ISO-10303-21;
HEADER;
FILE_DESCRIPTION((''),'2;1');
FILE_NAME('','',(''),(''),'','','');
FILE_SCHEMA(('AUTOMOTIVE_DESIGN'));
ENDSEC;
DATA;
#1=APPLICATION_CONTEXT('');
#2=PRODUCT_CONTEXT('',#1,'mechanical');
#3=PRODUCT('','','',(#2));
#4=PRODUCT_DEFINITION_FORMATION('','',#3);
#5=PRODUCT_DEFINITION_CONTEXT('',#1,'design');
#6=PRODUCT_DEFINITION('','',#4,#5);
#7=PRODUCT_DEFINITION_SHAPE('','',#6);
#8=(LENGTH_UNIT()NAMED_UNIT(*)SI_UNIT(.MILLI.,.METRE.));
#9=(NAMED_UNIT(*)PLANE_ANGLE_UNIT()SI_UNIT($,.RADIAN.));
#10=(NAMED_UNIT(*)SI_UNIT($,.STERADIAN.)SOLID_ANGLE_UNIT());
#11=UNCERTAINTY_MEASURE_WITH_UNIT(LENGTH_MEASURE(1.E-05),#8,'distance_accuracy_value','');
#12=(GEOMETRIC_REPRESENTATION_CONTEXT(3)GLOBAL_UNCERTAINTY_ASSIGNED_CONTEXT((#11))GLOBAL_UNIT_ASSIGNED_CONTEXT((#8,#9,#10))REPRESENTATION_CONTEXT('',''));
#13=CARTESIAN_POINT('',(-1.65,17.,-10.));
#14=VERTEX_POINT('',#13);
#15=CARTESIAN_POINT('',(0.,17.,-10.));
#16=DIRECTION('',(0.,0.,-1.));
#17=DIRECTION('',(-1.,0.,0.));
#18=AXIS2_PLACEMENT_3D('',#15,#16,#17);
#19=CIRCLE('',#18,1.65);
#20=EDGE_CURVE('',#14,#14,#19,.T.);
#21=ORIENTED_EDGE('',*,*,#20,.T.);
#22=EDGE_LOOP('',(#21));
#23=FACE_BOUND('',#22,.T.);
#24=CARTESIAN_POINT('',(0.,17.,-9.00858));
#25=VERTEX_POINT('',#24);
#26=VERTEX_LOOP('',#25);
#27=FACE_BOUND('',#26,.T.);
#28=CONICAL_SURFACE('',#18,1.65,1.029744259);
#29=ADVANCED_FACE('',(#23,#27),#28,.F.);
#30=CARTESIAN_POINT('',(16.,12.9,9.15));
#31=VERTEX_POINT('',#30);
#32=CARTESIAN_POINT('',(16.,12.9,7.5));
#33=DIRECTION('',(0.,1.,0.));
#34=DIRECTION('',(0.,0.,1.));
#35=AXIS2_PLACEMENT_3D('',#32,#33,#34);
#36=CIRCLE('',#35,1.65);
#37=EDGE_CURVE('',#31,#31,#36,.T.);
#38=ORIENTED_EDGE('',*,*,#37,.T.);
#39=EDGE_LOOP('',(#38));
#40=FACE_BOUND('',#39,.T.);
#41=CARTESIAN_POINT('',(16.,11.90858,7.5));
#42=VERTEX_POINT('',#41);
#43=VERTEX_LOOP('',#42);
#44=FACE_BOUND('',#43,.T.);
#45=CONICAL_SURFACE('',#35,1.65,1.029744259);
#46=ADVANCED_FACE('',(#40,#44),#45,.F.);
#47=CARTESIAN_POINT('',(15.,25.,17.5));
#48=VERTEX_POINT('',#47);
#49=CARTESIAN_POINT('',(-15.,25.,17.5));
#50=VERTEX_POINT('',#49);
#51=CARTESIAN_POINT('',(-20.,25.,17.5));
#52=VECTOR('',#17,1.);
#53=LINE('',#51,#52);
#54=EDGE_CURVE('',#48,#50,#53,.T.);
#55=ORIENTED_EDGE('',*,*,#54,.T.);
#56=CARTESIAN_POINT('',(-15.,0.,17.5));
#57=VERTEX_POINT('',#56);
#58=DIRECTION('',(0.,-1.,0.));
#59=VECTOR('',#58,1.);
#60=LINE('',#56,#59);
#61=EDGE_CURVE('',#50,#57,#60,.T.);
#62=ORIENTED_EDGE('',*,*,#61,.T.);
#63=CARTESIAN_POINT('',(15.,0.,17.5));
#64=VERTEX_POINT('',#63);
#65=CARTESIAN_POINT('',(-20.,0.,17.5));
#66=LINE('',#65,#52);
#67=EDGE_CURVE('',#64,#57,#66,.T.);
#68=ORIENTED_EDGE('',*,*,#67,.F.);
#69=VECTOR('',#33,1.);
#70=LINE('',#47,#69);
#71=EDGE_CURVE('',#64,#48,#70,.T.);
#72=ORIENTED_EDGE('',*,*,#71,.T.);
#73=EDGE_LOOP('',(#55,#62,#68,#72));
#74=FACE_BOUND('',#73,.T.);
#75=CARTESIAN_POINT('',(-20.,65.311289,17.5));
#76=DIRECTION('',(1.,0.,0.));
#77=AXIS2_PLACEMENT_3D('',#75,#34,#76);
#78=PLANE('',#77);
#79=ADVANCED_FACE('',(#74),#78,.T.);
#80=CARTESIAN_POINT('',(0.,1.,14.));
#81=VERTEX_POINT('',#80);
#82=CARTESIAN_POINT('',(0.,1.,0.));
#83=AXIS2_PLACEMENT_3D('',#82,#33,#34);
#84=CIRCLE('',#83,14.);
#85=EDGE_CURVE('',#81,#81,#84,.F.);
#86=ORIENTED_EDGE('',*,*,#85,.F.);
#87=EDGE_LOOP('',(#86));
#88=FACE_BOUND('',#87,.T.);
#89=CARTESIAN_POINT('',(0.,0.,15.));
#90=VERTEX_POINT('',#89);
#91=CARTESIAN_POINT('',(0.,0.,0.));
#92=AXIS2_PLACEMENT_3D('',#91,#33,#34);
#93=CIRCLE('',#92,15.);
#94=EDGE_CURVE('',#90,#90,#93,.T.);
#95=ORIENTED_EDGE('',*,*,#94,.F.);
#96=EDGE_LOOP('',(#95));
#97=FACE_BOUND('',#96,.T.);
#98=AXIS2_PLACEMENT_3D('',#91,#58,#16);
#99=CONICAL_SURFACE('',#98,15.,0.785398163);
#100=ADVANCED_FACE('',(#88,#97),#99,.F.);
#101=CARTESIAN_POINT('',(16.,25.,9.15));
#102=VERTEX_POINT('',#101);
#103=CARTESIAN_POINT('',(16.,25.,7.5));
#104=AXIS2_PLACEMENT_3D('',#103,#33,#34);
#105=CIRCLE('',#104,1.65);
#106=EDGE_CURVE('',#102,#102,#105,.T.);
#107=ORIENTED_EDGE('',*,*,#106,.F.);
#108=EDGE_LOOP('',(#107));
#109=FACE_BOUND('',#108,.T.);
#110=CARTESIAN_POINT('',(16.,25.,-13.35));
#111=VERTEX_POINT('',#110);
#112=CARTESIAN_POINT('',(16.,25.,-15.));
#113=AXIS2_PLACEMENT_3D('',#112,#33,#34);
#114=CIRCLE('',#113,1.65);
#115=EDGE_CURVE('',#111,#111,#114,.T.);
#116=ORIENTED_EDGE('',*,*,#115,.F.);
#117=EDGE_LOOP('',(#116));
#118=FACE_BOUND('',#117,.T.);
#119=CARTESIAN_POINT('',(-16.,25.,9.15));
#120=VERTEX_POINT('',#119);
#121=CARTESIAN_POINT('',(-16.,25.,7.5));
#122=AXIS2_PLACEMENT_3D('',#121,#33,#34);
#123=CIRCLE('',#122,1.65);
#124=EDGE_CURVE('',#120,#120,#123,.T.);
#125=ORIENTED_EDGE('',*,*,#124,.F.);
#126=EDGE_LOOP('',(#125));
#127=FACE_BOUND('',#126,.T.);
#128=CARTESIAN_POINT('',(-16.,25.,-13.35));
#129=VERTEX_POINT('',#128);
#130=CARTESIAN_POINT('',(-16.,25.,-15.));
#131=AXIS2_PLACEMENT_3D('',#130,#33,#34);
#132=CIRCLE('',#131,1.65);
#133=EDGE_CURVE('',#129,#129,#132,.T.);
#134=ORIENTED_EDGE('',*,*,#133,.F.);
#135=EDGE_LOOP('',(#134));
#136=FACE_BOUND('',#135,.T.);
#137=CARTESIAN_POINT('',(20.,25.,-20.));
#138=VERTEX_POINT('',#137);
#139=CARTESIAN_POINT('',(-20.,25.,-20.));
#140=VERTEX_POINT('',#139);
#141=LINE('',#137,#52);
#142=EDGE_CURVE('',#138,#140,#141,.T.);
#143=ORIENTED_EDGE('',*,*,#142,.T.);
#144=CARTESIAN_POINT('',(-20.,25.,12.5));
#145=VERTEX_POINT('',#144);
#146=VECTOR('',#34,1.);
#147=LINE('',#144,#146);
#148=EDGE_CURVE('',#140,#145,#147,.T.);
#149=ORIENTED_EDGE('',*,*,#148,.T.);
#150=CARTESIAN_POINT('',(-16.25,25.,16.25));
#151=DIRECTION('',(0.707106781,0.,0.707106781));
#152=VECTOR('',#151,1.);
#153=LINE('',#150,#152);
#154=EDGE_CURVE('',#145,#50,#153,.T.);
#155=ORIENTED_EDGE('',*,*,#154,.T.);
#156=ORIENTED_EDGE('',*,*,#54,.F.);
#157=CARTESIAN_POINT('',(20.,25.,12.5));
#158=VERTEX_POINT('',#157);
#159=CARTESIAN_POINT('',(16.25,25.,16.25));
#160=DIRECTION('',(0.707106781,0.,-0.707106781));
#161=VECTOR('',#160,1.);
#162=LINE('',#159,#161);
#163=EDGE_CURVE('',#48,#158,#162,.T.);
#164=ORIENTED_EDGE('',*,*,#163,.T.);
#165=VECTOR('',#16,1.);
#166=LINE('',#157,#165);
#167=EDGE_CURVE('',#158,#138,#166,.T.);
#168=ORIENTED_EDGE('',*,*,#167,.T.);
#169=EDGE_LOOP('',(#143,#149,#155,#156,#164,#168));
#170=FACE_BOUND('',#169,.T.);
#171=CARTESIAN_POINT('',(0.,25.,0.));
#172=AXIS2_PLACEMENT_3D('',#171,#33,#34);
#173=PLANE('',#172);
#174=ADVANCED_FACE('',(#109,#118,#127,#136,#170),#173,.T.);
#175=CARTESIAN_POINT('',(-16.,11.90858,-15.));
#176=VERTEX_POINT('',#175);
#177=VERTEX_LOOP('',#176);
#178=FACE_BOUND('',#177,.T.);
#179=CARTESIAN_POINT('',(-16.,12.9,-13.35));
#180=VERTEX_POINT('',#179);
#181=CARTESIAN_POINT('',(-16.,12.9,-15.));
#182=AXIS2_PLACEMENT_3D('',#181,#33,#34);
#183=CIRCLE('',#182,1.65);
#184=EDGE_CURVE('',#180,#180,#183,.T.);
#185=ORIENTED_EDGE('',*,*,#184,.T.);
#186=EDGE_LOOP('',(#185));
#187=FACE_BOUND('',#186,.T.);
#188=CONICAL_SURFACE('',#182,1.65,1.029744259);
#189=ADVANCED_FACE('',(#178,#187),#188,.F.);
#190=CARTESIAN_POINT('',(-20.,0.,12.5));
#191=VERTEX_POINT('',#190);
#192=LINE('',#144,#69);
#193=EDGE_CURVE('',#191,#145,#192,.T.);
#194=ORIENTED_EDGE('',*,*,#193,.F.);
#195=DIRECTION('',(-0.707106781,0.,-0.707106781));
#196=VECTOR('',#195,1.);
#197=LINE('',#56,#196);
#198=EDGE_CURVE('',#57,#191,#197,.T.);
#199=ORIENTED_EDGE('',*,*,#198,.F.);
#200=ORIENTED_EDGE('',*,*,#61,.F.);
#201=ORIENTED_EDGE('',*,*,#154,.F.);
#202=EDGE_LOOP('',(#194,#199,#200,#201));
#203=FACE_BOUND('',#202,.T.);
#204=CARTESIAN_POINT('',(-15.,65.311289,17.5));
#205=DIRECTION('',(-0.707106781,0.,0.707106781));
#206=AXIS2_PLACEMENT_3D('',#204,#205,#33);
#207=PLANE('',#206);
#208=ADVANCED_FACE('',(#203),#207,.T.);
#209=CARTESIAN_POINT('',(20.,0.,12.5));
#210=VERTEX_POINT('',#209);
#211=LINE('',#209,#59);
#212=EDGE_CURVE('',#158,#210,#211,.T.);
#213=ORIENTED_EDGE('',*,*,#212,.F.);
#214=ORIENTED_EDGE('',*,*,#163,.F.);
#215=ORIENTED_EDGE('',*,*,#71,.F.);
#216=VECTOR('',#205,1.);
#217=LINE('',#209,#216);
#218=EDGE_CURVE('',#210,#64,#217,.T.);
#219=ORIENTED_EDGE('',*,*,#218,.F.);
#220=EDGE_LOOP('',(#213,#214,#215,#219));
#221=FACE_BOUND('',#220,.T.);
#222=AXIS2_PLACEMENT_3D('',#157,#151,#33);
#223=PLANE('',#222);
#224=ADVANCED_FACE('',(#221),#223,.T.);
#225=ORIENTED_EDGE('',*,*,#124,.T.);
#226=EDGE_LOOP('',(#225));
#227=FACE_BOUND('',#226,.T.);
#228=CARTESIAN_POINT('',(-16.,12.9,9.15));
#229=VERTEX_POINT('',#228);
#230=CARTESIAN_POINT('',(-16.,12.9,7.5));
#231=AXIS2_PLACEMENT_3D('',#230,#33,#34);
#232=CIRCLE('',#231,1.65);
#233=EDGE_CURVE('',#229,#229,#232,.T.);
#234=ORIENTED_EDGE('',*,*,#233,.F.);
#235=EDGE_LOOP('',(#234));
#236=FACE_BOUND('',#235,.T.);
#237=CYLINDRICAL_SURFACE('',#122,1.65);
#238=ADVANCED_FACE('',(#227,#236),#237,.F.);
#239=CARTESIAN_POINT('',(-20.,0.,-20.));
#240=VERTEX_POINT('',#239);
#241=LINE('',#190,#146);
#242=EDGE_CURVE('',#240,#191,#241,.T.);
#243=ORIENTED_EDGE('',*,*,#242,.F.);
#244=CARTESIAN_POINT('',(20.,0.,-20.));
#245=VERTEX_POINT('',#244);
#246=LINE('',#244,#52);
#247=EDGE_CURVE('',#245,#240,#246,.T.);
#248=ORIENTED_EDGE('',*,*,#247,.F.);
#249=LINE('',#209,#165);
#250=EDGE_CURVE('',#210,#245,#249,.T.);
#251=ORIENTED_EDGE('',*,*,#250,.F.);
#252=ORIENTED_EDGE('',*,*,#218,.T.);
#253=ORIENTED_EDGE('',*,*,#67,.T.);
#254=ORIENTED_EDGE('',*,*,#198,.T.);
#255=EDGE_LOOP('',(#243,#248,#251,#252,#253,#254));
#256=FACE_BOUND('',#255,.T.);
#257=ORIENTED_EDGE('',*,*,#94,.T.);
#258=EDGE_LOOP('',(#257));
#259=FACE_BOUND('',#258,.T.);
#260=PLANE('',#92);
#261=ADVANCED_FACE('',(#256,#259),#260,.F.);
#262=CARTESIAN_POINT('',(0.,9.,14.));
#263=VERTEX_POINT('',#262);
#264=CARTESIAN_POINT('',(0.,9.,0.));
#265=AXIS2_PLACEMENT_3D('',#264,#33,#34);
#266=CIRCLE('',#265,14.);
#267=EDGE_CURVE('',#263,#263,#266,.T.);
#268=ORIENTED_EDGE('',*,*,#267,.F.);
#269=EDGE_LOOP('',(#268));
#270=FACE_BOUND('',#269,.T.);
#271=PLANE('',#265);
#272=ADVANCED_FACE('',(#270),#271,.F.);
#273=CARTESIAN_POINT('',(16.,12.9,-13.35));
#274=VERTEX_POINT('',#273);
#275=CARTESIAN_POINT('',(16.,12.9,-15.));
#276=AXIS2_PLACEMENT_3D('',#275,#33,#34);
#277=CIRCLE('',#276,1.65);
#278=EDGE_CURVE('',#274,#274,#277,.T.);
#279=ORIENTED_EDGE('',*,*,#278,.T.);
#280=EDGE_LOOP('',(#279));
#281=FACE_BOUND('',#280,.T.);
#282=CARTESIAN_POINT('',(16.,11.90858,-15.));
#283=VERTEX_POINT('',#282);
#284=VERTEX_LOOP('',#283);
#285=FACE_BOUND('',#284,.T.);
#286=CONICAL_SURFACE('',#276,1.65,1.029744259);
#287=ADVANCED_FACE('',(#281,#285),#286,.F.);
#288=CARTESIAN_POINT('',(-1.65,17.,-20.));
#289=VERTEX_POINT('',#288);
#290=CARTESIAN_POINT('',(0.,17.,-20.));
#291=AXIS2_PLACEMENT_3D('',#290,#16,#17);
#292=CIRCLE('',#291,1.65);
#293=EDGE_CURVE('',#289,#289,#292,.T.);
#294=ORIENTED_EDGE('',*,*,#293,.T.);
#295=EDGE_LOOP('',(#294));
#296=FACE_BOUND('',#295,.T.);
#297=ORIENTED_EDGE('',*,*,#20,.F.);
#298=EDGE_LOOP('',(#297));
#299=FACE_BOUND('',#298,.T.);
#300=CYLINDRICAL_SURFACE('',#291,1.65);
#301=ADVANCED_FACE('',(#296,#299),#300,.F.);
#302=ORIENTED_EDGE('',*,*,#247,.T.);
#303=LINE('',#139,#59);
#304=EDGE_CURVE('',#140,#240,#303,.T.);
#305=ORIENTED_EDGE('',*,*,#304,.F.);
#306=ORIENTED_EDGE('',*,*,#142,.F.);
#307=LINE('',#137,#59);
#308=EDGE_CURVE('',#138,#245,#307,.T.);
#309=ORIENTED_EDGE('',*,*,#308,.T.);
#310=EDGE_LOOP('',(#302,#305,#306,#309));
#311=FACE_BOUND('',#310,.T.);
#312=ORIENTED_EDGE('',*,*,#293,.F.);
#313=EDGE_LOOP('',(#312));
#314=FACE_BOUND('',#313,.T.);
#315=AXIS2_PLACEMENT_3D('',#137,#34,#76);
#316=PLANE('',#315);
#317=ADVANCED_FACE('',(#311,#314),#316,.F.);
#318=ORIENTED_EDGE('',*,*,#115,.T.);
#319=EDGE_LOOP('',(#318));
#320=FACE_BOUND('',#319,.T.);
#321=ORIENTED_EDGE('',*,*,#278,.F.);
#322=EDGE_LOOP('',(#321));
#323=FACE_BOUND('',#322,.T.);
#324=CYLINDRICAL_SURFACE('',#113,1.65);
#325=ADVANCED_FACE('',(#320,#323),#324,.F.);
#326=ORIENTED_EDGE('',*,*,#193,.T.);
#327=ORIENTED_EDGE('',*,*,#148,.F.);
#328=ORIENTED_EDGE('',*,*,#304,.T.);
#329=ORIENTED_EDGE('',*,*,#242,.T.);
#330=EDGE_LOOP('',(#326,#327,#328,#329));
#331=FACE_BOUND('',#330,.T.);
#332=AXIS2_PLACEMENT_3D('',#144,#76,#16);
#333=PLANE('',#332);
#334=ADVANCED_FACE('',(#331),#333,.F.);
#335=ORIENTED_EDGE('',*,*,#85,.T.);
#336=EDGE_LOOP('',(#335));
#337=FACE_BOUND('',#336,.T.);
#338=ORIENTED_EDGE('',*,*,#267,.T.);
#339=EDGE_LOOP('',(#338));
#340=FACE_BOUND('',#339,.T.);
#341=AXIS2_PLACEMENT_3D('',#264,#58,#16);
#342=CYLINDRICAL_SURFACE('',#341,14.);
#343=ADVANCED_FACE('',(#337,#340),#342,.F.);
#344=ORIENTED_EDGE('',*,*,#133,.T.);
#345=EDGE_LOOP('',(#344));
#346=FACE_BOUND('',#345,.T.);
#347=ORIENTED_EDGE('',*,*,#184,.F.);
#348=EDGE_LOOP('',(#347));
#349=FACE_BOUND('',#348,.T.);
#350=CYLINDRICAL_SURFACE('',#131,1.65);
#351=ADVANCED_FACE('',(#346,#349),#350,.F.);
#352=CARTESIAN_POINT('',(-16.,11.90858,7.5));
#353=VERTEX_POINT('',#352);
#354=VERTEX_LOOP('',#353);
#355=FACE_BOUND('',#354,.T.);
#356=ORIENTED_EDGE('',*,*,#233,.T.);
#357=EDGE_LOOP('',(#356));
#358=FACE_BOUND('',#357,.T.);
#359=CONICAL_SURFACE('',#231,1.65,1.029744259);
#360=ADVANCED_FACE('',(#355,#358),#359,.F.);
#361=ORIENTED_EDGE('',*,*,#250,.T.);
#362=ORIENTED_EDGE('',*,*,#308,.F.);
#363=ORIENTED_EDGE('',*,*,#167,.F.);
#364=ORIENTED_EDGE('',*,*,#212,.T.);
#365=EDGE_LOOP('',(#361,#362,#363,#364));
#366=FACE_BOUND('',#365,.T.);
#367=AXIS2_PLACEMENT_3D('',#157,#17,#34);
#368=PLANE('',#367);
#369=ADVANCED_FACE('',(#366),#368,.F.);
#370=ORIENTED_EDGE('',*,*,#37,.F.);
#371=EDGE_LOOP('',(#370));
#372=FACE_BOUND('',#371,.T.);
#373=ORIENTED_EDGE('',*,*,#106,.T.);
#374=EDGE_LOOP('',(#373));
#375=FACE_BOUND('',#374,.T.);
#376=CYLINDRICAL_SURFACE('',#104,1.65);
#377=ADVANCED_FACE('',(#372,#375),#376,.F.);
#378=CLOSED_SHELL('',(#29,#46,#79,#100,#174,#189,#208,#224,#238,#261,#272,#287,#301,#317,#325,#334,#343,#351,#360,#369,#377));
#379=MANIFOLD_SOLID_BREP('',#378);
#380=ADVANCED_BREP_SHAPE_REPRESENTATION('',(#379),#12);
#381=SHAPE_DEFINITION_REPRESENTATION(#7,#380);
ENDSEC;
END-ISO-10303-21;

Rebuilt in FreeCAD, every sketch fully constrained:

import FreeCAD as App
import Part
import Sketcher
from FreeCAD import Vector
Q = App.Units.Quantity


def edges_at(feature, points):
    """Names of the edges that pass closest to the given points."""
    edges = feature.Shape.Edges
    near = lambda p: min(range(len(edges)), key=lambda i: edges[i].distToShape(Part.Vertex(*p))[0])
    return sorted({f"Edge{near(p) + 1}" for p in points})

doc = App.newDocument("Part")
body = doc.addObject("PartDesign::Body", "Body")

# Sketch on XZ plane
sketch1 = body.newObject("Sketcher::SketchObject", "Sketch")
sketch1.AttachmentSupport = (doc.getObject("XZ_Plane"), [""])
sketch1.MapMode = "FlatFace"
sketch1.addGeometry([
    Part.LineSegment(Vector(-20, -20, 0), Vector(-20, 12.5, 0)),
    Part.LineSegment(Vector(-20, 12.5, 0), Vector(20, 12.5, 0)),
    Part.LineSegment(Vector(20, 12.5, 0), Vector(20, -20, 0)),
    Part.LineSegment(Vector(20, -20, 0), Vector(-20, -20, 0)),
], False)
sketch1.addConstraint([
    Sketcher.Constraint("Coincident", 0, 2, 1, 1),
    Sketcher.Constraint("Coincident", 1, 2, 2, 1),
    Sketcher.Constraint("Coincident", 2, 2, 3, 1),
    Sketcher.Constraint("Coincident", 3, 2, 0, 1),
    Sketcher.Constraint("Vertical", 0),
    Sketcher.Constraint("Horizontal", 1),
    Sketcher.Constraint("Vertical", 2),
    Sketcher.Constraint("Horizontal", 3),
    Sketcher.Constraint("DistanceX", 1, 1, 1, 2, Q("40 mm")),
    Sketcher.Constraint("DistanceY", 0, 1, 0, 2, Q("32.5 mm")),
    Sketcher.Constraint("DistanceX", 0, 2, -1, 1, Q("20 mm")),
    Sketcher.Constraint("DistanceY", 2, 2, -1, 1, Q("20 mm")),
])
pad1 = body.newObject("PartDesign::Pad", "Pad")
pad1.Profile = sketch1
pad1.Length = 25
pad1.Reversed = True

# Sketch on XZ plane
sketch2 = body.newObject("Sketcher::SketchObject", "Sketch001")
sketch2.AttachmentSupport = (doc.getObject("XZ_Plane"), [""])
sketch2.MapMode = "FlatFace"
sketch2.addGeometry([
    Part.LineSegment(Vector(-20, 17.5, 0), Vector(-20, 12.5, 0)),
    Part.LineSegment(Vector(-20, 12.5, 0), Vector(20, 12.5, 0)),
    Part.LineSegment(Vector(20, 12.5, 0), Vector(20, 17.5, 0)),
    Part.LineSegment(Vector(20, 17.5, 0), Vector(-20, 17.5, 0)),
], False)
sketch2.addConstraint([
    Sketcher.Constraint("Coincident", 0, 2, 1, 1),
    Sketcher.Constraint("Coincident", 1, 2, 2, 1),
    Sketcher.Constraint("Coincident", 2, 2, 3, 1),
    Sketcher.Constraint("Coincident", 3, 2, 0, 1),
    Sketcher.Constraint("Vertical", 0),
    Sketcher.Constraint("Horizontal", 1),
    Sketcher.Constraint("Vertical", 2),
    Sketcher.Constraint("Horizontal", 3),
    Sketcher.Constraint("DistanceX", 1, 1, 1, 2, Q("40 mm")),
    Sketcher.Constraint("DistanceY", 0, 2, 0, 1, Q("5 mm")),
    Sketcher.Constraint("DistanceX", 0, 2, -1, 1, Q("20 mm")),
    Sketcher.Constraint("DistanceY", -1, 1, 0, 2, Q("12.5 mm")),
])
pad2 = body.newObject("PartDesign::Pad", "Pad001")
pad2.Profile = sketch2
pad2.Length = 25
pad2.Reversed = True

# Sketch on XZ plane
sketch3 = body.newObject("Sketcher::SketchObject", "Sketch002")
sketch3.AttachmentSupport = (doc.getObject("XZ_Plane"), [""])
sketch3.MapMode = "FlatFace"
sketch3.addGeometry(Part.Circle(Vector(0, 0, 0), Vector(0, 0, 1), 14), False)
sketch3.addConstraint([
    Sketcher.Constraint("Coincident", 0, 3, -1, 1),
    Sketcher.Constraint("Diameter", 0, Q("28 mm")),
])
pocket1 = body.newObject("PartDesign::Pocket", "Pocket")
pocket1.Profile = sketch3
pocket1.Length = 9
doc.recompute()

chamfer = body.newObject("PartDesign::Chamfer", "Chamfer")
chamfer.Base = (pocket1, edges_at(pocket1, [(0, 0, -14)]))
chamfer.Size = 1

# Sketch on XY plane
sketch4 = body.newObject("Sketcher::SketchObject", "Sketch003")
sketch4.AttachmentSupport = (doc.getObject("XY_Plane"), [""])
sketch4.MapMode = "FlatFace"
sketch4.AttachmentOffset = App.Placement(Vector(0, 0, -20), App.Rotation())
sketch4.addGeometry(Part.Circle(Vector(0, 17, 0), Vector(0, 0, 1), 1.65), False)
sketch4.addConstraint([
    Sketcher.Constraint("PointOnObject", 0, 3, -2),
    Sketcher.Constraint("Diameter", 0, Q("3.3 mm")),
    Sketcher.Constraint("DistanceY", -1, 1, 0, 3, Q("17 mm")),
])
doc.recompute()
hole = body.newObject("PartDesign::Hole", "Hole")
hole.Profile = sketch4
hole.ThreadType = "None"
hole.Diameter = 3.3
hole.DepthType = "Dimension"
hole.Depth = 10
hole.DrillPoint = "Angled"
hole.DrillPointAngle = 118
hole.Reversed = True
doc.recompute()

chamfer2 = body.newObject("PartDesign::Chamfer", "Chamfer001")
chamfer2.Base = (hole, edges_at(hole, [(20, 12.5, 17.5), (-20, 12.5, 17.5)]))
chamfer2.Size = 5

# Sketch on XZ plane
sketch5 = body.newObject("Sketcher::SketchObject", "Sketch004")
sketch5.AttachmentSupport = (doc.getObject("XZ_Plane"), [""])
sketch5.MapMode = "FlatFace"
sketch5.AttachmentOffset = App.Placement(Vector(0, 0, -25), App.Rotation())
sketch5.addGeometry([
    Part.Circle(Vector(-16, -15, 0), Vector(0, 0, 1), 1.65),
    Part.Circle(Vector(-16, 7.5, 0), Vector(0, 0, 1), 1.65),
    Part.Circle(Vector(16, 7.5, 0), Vector(0, 0, 1), 1.65),
    Part.Circle(Vector(16, -15, 0), Vector(0, 0, 1), 1.65),
], False)
sketch5.addConstraint([
    Sketcher.Constraint("Equal", 0, 1),
    Sketcher.Constraint("Equal", 1, 2),
    Sketcher.Constraint("Equal", 2, 3),
    Sketcher.Constraint("Symmetric", 1, 3, 2, 3, -2),
    Sketcher.Constraint("Symmetric", 0, 3, 3, 3, -2),
    Sketcher.Constraint("Vertical", 0, 3, 1, 3),
    Sketcher.Constraint("Diameter", 0, Q("3.3 mm")),
    Sketcher.Constraint("DistanceX", 0, 3, -1, 1, Q("16 mm")),
    Sketcher.Constraint("DistanceY", 0, 3, -1, 1, Q("15 mm")),
    Sketcher.Constraint("DistanceY", -1, 1, 1, 3, Q("7.5 mm")),
])
doc.recompute()
hole2 = body.newObject("PartDesign::Hole", "Hole001")
hole2.Profile = sketch5
hole2.ThreadType = "None"
hole2.Diameter = 3.3
hole2.DepthType = "Dimension"
hole2.Depth = 12.1
hole2.DrillPoint = "Angled"
hole2.DrillPointAngle = 118
hole2.Reversed = True

doc.recompute()
